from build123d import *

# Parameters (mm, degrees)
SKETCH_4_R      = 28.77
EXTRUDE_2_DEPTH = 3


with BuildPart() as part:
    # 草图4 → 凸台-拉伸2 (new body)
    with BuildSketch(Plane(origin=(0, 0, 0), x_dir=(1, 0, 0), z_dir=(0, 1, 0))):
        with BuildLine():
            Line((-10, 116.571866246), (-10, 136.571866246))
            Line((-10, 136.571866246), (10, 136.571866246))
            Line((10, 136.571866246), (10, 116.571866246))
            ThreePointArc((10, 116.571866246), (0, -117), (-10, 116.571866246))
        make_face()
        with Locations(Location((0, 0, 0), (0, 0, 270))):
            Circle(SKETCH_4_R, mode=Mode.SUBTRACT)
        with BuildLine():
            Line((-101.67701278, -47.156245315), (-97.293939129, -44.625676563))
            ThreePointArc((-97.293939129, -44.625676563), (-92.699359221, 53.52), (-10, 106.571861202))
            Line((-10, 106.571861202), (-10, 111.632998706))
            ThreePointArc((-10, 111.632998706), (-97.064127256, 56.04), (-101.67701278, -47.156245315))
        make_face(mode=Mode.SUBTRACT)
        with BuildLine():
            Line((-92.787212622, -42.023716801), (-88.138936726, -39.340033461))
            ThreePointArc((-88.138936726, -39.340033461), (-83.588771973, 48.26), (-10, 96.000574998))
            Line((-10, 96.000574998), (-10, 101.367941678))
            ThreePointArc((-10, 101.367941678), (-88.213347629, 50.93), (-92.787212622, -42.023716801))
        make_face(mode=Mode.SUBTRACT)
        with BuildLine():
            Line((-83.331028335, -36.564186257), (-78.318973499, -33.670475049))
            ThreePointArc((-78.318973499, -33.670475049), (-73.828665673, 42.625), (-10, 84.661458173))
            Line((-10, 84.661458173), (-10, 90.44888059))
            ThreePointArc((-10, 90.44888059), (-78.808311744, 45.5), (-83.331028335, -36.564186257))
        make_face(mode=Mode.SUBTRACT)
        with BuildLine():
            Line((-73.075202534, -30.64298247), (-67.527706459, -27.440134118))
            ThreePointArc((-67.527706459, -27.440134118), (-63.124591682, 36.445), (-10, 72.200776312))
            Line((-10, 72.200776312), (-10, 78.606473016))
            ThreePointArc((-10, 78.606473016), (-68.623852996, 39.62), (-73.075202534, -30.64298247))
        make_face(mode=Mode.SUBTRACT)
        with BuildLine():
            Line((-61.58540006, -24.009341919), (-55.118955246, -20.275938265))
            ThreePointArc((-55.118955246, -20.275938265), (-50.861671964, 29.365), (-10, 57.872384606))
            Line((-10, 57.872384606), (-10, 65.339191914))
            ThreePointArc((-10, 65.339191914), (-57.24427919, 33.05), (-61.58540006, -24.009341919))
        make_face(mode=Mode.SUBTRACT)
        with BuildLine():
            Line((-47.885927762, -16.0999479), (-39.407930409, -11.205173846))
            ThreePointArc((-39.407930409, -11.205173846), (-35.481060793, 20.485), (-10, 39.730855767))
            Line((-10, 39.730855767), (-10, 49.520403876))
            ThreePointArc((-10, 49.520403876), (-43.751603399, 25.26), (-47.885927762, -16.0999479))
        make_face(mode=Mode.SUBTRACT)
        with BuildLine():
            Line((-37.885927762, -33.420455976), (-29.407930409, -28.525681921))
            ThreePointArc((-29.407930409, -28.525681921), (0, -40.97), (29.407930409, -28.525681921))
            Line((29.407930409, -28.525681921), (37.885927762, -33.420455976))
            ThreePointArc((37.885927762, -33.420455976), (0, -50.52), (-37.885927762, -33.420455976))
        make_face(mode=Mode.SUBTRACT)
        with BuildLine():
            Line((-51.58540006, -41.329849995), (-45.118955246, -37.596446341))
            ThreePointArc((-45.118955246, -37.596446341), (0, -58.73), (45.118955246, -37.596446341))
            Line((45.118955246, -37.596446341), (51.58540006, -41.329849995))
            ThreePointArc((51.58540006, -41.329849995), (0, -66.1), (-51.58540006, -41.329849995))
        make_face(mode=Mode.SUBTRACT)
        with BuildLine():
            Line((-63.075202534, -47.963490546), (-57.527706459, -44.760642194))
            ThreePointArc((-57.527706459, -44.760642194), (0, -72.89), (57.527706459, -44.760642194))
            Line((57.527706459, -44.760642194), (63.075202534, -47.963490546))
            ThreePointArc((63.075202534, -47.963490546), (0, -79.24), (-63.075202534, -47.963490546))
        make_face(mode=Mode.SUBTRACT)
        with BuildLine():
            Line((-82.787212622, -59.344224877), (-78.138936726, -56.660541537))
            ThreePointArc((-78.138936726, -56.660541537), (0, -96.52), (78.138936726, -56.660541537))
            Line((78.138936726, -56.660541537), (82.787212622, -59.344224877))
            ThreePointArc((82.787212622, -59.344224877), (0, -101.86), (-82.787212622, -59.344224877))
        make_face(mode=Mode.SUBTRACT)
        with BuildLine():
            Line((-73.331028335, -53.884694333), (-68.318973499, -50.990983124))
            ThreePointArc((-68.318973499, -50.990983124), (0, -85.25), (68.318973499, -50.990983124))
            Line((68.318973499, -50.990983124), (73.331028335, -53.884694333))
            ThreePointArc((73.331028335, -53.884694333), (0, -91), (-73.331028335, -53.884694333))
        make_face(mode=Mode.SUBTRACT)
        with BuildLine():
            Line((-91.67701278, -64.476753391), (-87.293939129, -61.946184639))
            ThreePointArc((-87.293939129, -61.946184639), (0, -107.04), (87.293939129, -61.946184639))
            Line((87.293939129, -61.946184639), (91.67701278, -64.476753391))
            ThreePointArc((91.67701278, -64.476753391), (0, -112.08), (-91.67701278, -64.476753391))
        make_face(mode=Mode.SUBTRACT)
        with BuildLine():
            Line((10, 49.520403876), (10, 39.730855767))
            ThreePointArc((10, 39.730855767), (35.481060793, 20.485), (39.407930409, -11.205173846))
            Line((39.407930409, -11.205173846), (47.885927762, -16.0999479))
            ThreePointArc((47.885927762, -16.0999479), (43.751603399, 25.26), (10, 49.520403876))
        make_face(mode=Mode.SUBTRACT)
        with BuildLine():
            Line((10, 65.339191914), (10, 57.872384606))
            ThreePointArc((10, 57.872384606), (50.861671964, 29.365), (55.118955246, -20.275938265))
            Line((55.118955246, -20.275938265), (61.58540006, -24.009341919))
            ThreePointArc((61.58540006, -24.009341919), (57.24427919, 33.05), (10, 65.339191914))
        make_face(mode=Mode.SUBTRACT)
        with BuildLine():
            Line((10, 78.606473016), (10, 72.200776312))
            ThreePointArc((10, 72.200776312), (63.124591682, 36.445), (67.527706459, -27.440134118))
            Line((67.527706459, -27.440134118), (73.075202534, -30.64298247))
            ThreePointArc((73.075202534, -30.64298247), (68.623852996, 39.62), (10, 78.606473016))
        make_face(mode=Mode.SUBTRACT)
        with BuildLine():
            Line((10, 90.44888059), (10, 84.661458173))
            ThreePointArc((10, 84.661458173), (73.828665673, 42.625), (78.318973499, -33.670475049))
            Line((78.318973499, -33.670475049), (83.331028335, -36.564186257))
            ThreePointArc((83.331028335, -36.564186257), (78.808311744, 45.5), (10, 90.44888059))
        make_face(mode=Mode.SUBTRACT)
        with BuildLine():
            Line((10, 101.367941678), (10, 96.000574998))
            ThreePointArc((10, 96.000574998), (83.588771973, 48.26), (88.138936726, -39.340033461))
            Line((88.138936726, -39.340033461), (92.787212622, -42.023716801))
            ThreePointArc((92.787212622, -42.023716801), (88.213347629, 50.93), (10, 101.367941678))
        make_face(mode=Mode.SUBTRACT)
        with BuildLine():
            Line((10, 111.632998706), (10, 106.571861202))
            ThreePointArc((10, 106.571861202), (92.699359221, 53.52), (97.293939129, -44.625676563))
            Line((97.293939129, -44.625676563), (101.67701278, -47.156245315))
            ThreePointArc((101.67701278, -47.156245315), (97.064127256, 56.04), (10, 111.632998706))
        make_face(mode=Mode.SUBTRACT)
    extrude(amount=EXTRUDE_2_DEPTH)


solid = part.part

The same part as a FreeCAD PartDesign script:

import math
import FreeCAD as App
import Part
import Sketcher

V = App.Vector
Q = App.Units.Quantity

doc = App.newDocument("Part")
body = doc.addObject("PartDesign::Body", "Body")

# Sketch on XZ plane
sketch1 = body.newObject("Sketcher::SketchObject", "Sketch")
sketch1.AttachmentSupport = (doc.getObject("XZ_Plane"), [""])
sketch1.MapMode = "FlatFace"
sketch1.addGeometry([
    Part.LineSegment(V(-10, -136.571866, 0), V(-10, -116.571866, 0)),  # 0
    Part.ArcOfCircle(Part.Circle(V(0, 0, 0), V(0, 0, 1), 117), math.radians(-85.096943), math.radians(265.096943)),  # 1
    Part.LineSegment(V(10, -116.571866, 0), V(10, -136.571866, 0)),  # 2
    Part.LineSegment(V(10, -136.571866, 0), V(-10, -136.571866, 0)),  # 3
    Part.LineSegment(V(-91.677013, 64.476753, 0), V(-87.293939, 61.946185, 0)),  # 4
    Part.ArcOfCircle(Part.Circle(V(0, 0, 0), V(0, 0, 1), 107.04), math.radians(35.360562), math.radians(144.639438)),  # 5
    Part.LineSegment(V(87.293939, 61.946185, 0), V(91.677013, 64.476753, 0)),  # 6
    Part.ArcOfCircle(Part.Circle(V(0, 0, 0), V(0, 0, 1), 112.08), math.radians(35.11885), math.radians(144.88115)),  # 7
    Part.LineSegment(V(-82.787213, 59.344225, 0), V(-78.138937, 56.660542, 0)),  # 8
    Part.ArcOfCircle(Part.Circle(V(0, 0, 0), V(0, 0, 1), 96.52), math.radians(35.946828), math.radians(144.053172)),  # 9
    Part.LineSegment(V(78.138937, 56.660542, 0), V(82.787213, 59.344225, 0)),  # 10
    Part.ArcOfCircle(Part.Circle(V(0, 0, 0), V(0, 0, 1), 101.86), math.radians(35.634029), math.radians(144.365971)),  # 11
    Part.LineSegment(V(-73.331028, 53.884694, 0), V(-68.318973, 50.990983, 0)),  # 12
    Part.ArcOfCircle(Part.Circle(V(0, 0, 0), V(0, 0, 1), 85.25), math.radians(36.736422), math.radians(143.263578)),  # 13
    Part.LineSegment(V(68.318973, 50.990983, 0), V(73.331028, 53.884694, 0)),  # 14
    Part.ArcOfCircle(Part.Circle(V(0, 0, 0), V(0, 0, 1), 91), math.radians(36.308981), math.radians(143.691019)),  # 15
    Part.LineSegment(V(-63.075203, 47.963491, 0), V(-57.527706, 44.760642, 0)),  # 16
    Part.ArcOfCircle(Part.Circle(V(0, 0, 0), V(0, 0, 1), 72.89), math.radians(37.885451), math.radians(142.114549)),  # 17
    Part.LineSegment(V(57.527706, 44.760642, 0), V(63.075203, 47.963491, 0)),  # 18
    Part.ArcOfCircle(Part.Circle(V(0, 0, 0), V(0, 0, 1), 79.24), math.radians(37.249995), math.radians(142.750005)),  # 19
    Part.LineSegment(V(-51.5854, 41.32985, 0), V(-45.118955, 37.596446, 0)),  # 20
    Part.ArcOfCircle(Part.Circle(V(0, 0, 0), V(0, 0, 1), 58.73), math.radians(39.80356), math.radians(140.19644)),  # 21
    Part.LineSegment(V(45.118955, 37.596446, 0), V(51.5854, 41.32985, 0)),  # 22
    Part.ArcOfCircle(Part.Circle(V(0, 0, 0), V(0, 0, 1), 66.1), math.radians(38.701455), math.radians(141.298545)),  # 23
    Part.LineSegment(V(-37.885928, 33.420456, 0), V(-29.40793, 28.525682, 0)),  # 24
    Part.ArcOfCircle(Part.Circle(V(0, 0, 0), V(0, 0, 1), 40.97), math.radians(44.127532), math.radians(135.872468)),  # 25
    Part.LineSegment(V(29.40793, 28.525682, 0), V(37.885928, 33.420456, 0)),  # 26
    Part.ArcOfCircle(Part.Circle(V(0, 0, 0), V(0, 0, 1), 50.52), math.radians(41.416604), math.radians(138.583396)),  # 27
    Part.ArcOfCircle(Part.Circle(V(0, 0, 0), V(0, 0, 1), 112.08), math.radians(-84.88115), math.radians(24.88115)),  # 28
    Part.LineSegment(V(101.677013, 47.156245, 0), V(97.293939, 44.625677, 0)),  # 29
    Part.ArcOfCircle(Part.Circle(V(0, 0, 0), V(0, 0, 1), 107.04), math.radians(-84.639438), math.radians(24.639438)),  # 30
    Part.LineSegment(V(10, -106.571861, 0), V(10, -111.632999, 0)),  # 31
    Part.ArcOfCircle(Part.Circle(V(0, 0, 0), V(0, 0, 1), 91), math.radians(-83.691019), math.radians(23.691019)),  # 32
    Part.LineSegment(V(83.331028, 36.564186, 0), V(78.318973, 33.670475, 0)),  # 33
    Part.ArcOfCircle(Part.Circle(V(0, 0, 0), V(0, 0, 1), 85.25), math.radians(-83.263578), math.radians(23.263578)),  # 34
    Part.LineSegment(V(10, -84.661458, 0), V(10, -90.448881, 0)),  # 35
    Part.ArcOfCircle(Part.Circle(V(0, 0, 0), V(0, 0, 1), 79.24), math.radians(-82.750005), math.radians(22.750005)),  # 36
    Part.LineSegment(V(73.075203, 30.642982, 0), V(67.527706, 27.440134, 0)),  # 37
    Part.ArcOfCircle(Part.Circle(V(0, 0, 0), V(0, 0, 1), 72.89), math.radians(-82.114549), math.radians(22.114549)),  # 38
    Part.LineSegment(V(10, -72.200776, 0), V(10, -78.606473, 0)),  # 39
    Part.ArcOfCircle(Part.Circle(V(0, 0, 0), V(0, 0, 1), 66.1), math.radians(-81.298545), math.radians(21.298545)),  # 40
    Part.LineSegment(V(61.5854, 24.009342, 0), V(55.118955, 20.275938, 0)),  # 41
    Part.ArcOfCircle(Part.Circle(V(0, 0, 0), V(0, 0, 1), 58.73), math.radians(-80.19644), math.radians(20.19644)),  # 42
    Part.LineSegment(V(10, -57.872385, 0), V(10, -65.339192, 0)),  # 43
    Part.ArcOfCircle(Part.Circle(V(0, 0, 0), V(0, 0, 1), 50.52), math.radians(-78.583396), math.radians(18.583396)),  # 44
    Part.LineSegment(V(47.885928, 16.099948, 0), V(39.40793, 11.205174, 0)),  # 45
    Part.ArcOfCircle(Part.Circle(V(0, 0, 0), V(0, 0, 1), 40.97), math.radians(-75.872468), math.radians(15.872468)),  # 46
    Part.LineSegment(V(10, -39.730856, 0), V(10, -49.520404, 0)),  # 47
    Part.ArcOfCircle(Part.Circle(V(0, 0, 0), V(0, 0, 1), 101.86), math.radians(-84.365971), math.radians(24.365971)),  # 48
    Part.LineSegment(V(92.787213, 42.023717, 0), V(88.138937, 39.340033, 0)),  # 49
    Part.ArcOfCircle(Part.Circle(V(0, 0, 0), V(0, 0, 1), 96.52), math.radians(-84.053172), math.radians(24.053172)),  # 50
    Part.LineSegment(V(10, -96.000575, 0), V(10, -101.367942, 0)),  # 51
    Part.Circle(V(0, 0, 0), V(0, 0, 1), 28.77),  # 52
    Part.ArcOfCircle(Part.Circle(V(0, 0, 0), V(0, 0, 1), 50.52), math.radians(161.416604), math.radians(258.583396)),  # 53
    Part.LineSegment(V(-10, -49.520404, 0), V(-10, -39.730856, 0)),  # 54
    Part.ArcOfCircle(Part.Circle(V(0, 0, 0), V(0, 0, 1), 40.97), math.radians(164.127532), math.radians(255.872468)),  # 55
    Part.LineSegment(V(-39.40793, 11.205174, 0), V(-47.885928, 16.099948, 0)),  # 56
    Part.ArcOfCircle(Part.Circle(V(0, 0, 0), V(0, 0, 1), 66.1), math.radians(158.701455), math.radians(261.298545)),  # 57
    Part.LineSegment(V(-10, -65.339192, 0), V(-10, -57.872385, 0)),  # 58
    Part.ArcOfCircle(Part.Circle(V(0, 0, 0), V(0, 0, 1), 58.73), math.radians(159.80356), math.radians(260.19644)),  # 59
    Part.LineSegment(V(-55.118955, 20.275938, 0), V(-61.5854, 24.009342, 0)),  # 60
    Part.ArcOfCircle(Part.Circle(V(0, 0, 0), V(0, 0, 1), 79.24), math.radians(157.249995), math.radians(262.750005)),  # 61
    Part.LineSegment(V(-10, -78.606473, 0), V(-10, -72.200776, 0)),  # 62
    Part.ArcOfCircle(Part.Circle(V(0, 0, 0), V(0, 0, 1), 72.89), math.radians(157.885451), math.radians(262.114549)),  # 63
    Part.LineSegment(V(-67.527706, 27.440134, 0), V(-73.075203, 30.642982, 0)),  # 64
    Part.ArcOfCircle(Part.Circle(V(0, 0, 0), V(0, 0, 1), 91), math.radians(156.308981), math.radians(263.691019)),  # 65
    Part.LineSegment(V(-10, -90.448881, 0), V(-10, -84.661458, 0)),  # 66
    Part.ArcOfCircle(Part.Circle(V(0, 0, 0), V(0, 0, 1), 85.25), math.radians(156.736422), math.radians(263.263578)),  # 67
    Part.LineSegment(V(-78.318973, 33.670475, 0), V(-83.331028, 36.564186, 0)),  # 68
    Part.ArcOfCircle(Part.Circle(V(0, 0, 0), V(0, 0, 1), 101.86), math.radians(155.634029), math.radians(264.365971)),  # 69
    Part.LineSegment(V(-10, -101.367942, 0), V(-10, -96.000575, 0)),  # 70
    Part.ArcOfCircle(Part.Circle(V(0, 0, 0), V(0, 0, 1), 96.52), math.radians(155.946828), math.radians(264.053172)),  # 71
    Part.LineSegment(V(-88.138937, 39.340033, 0), V(-92.787213, 42.023717, 0)),  # 72
    Part.ArcOfCircle(Part.Circle(V(0, 0, 0), V(0, 0, 1), 112.08), math.radians(155.11885), math.radians(264.88115)),  # 73
    Part.LineSegment(V(-10, -111.632999, 0), V(-10, -106.571861, 0)),  # 74
    Part.ArcOfCircle(Part.Circle(V(0, 0, 0), V(0, 0, 1), 107.04), math.radians(155.360562), math.radians(264.639438)),  # 75
    Part.LineSegment(V(-97.293939, 44.625677, 0), V(-101.677013, 47.156245, 0)),  # 76
], False)
sketch1.addConstraint([
    Sketcher.Constraint("Coincident", 0, 2, 1, 2),
    Sketcher.Constraint("Coincident", 1, 1, 2, 1),
    Sketcher.Constraint("Coincident", 2, 2, 3, 1),
    Sketcher.Constraint("Coincident", 3, 2, 0, 1),
    Sketcher.Constraint("Coincident", 4, 2, 5, 2),
    Sketcher.Constraint("Coincident", 5, 1, 6, 1),
    Sketcher.Constraint("Coincident", 6, 2, 7, 1),
    Sketcher.Constraint("Coincident", 7, 2, 4, 1),
    Sketcher.Constraint("Coincident", 8, 2, 9, 2),
    Sketcher.Constraint("Coincident", 9, 1, 10, 1),
    Sketcher.Constraint("Coincident", 10, 2, 11, 1),
    Sketcher.Constraint("Coincident", 11, 2, 8, 1),
    Sketcher.Constraint("Coincident", 12, 2, 13, 2),
    Sketcher.Constraint("Coincident", 13, 1, 14, 1),
    Sketcher.Constraint("Coincident", 14, 2, 15, 1),
    Sketcher.Constraint("Coincident", 15, 2, 12, 1),
    Sketcher.Constraint("Coincident", 16, 2, 17, 2),
    Sketcher.Constraint("Coincident", 17, 1, 18, 1),
    Sketcher.Constraint("Coincident", 18, 2, 19, 1),
    Sketcher.Constraint("Coincident", 19, 2, 16, 1),
    Sketcher.Constraint("Coincident", 20, 2, 21, 2),
    Sketcher.Constraint("Coincident", 21, 1, 22, 1),
    Sketcher.Constraint("Coincident", 22, 2, 23, 1),
    Sketcher.Constraint("Coincident", 23, 2, 20, 1),
    Sketcher.Constraint("Coincident", 24, 2, 25, 2),
    Sketcher.Constraint("Coincident", 25, 1, 26, 1),
    Sketcher.Constraint("Coincident", 26, 2, 27, 1),
    Sketcher.Constraint("Coincident", 27, 2, 24, 1),
    Sketcher.Constraint("Coincident", 28, 2, 29, 1),
    Sketcher.Constraint("Coincident", 29, 2, 30, 2),
    Sketcher.Constraint("Coincident", 30, 1, 31, 1),
    Sketcher.Constraint("Coincident", 31, 2, 28, 1),
    Sketcher.Constraint("Coincident", 32, 2, 33, 1),
    Sketcher.Constraint("Coincident", 33, 2, 34, 2),
    Sketcher.Constraint("Coincident", 34, 1, 35, 1),
    Sketcher.Constraint("Coincident", 35, 2, 32, 1),
    Sketcher.Constraint("Coincident", 36, 2, 37, 1),
    Sketcher.Constraint("Coincident", 37, 2, 38, 2),
    Sketcher.Constraint("Coincident", 38, 1, 39, 1),
    Sketcher.Constraint("Coincident", 39, 2, 36, 1),
    Sketcher.Constraint("Coincident", 40, 2, 41, 1),
    Sketcher.Constraint("Coincident", 41, 2, 42, 2),
    Sketcher.Constraint("Coincident", 42, 1, 43, 1),
    Sketcher.Constraint("Coincident", 43, 2, 40, 1),
    Sketcher.Constraint("Coincident", 44, 2, 45, 1),
    Sketcher.Constraint("Coincident", 45, 2, 46, 2),
    Sketcher.Constraint("Coincident", 46, 1, 47, 1),
    Sketcher.Constraint("Coincident", 47, 2, 44, 1),
    Sketcher.Constraint("Coincident", 48, 2, 49, 1),
    Sketcher.Constraint("Coincident", 49, 2, 50, 2),
    Sketcher.Constraint("Coincident", 50, 1, 51, 1),
    Sketcher.Constraint("Coincident", 51, 2, 48, 1),
    Sketcher.Constraint("Coincident", 53, 2, 54, 1),
    Sketcher.Constraint("Coincident", 54, 2, 55, 2),
    Sketcher.Constraint("Coincident", 55, 1, 56, 1),
    Sketcher.Constraint("Coincident", 56, 2, 53, 1),
    Sketcher.Constraint("Coincident", 57, 2, 58, 1),
    Sketcher.Constraint("Coincident", 58, 2, 59, 2),
    Sketcher.Constraint("Coincident", 59, 1, 60, 1),
    Sketcher.Constraint("Coincident", 60, 2, 57, 1),
    Sketcher.Constraint("Coincident", 61, 2, 62, 1),
    Sketcher.Constraint("Coincident", 62, 2, 63, 2),
    Sketcher.Constraint("Coincident", 63, 1, 64, 1),
    Sketcher.Constraint("Coincident", 64, 2, 61, 1),
    Sketcher.Constraint("Coincident", 65, 2, 66, 1),
    Sketcher.Constraint("Coincident", 66, 2, 67, 2),
    Sketcher.Constraint("Coincident", 67, 1, 68, 1),
    Sketcher.Constraint("Coincident", 68, 2, 65, 1),
    Sketcher.Constraint("Coincident", 69, 2, 70, 1),
    Sketcher.Constraint("Coincident", 70, 2, 71, 2),
    Sketcher.Constraint("Coincident", 71, 1, 72, 1),
    Sketcher.Constraint("Coincident", 72, 2, 69, 1),
    Sketcher.Constraint("Coincident", 73, 2, 74, 1),
    Sketcher.Constraint("Coincident", 74, 2, 75, 2),
    Sketcher.Constraint("Coincident", 75, 1, 76, 1),
    Sketcher.Constraint("Coincident", 76, 2, 73, 1),
    Sketcher.Constraint("Vertical", 0),
    Sketcher.Constraint("Vertical", 2),
    Sketcher.Constraint("Horizontal", 3),
    Sketcher.Constraint("Vertical", 31),
    Sketcher.Constraint("Vertical", 35),
    Sketcher.Constraint("Vertical", 39),
    Sketcher.Constraint("Vertical", 43),
    Sketcher.Constraint("Vertical", 47),
    Sketcher.Constraint("Vertical", 51),
    Sketcher.Constraint("Vertical", 54),
    Sketcher.Constraint("Vertical", 58),
    Sketcher.Constraint("Vertical", 62),
    Sketcher.Constraint("Vertical", 66),
    Sketcher.Constraint("Vertical", 70),
    Sketcher.Constraint("Vertical", 74),
    Sketcher.Constraint("Coincident", 1, 3, -1, 1),
    Sketcher.Constraint("Coincident", 5, 3, -1, 1),
    Sketcher.Constraint("Coincident", 7, 3, -1, 1),
    Sketcher.Constraint("Coincident", 9, 3, -1, 1),
    Sketcher.Constraint("Coincident", 11, 3, -1, 1),
    Sketcher.Constraint("Coincident", 13, 3, -1, 1),
    Sketcher.Constraint("Coincident", 15, 3, -1, 1),
    Sketcher.Constraint("Coincident", 17, 3, -1, 1),
    Sketcher.Constraint("Coincident", 19, 3, -1, 1),
    Sketcher.Constraint("Coincident", 21, 3, -1, 1),
    Sketcher.Constraint("Coincident", 23, 3, -1, 1),
    Sketcher.Constraint("Coincident", 25, 3, -1, 1),
    Sketcher.Constraint("Coincident", 27, 3, -1, 1),
    Sketcher.Constraint("Coincident", 28, 3, -1, 1),
    Sketcher.Constraint("Coincident", 30, 3, -1, 1),
    Sketcher.Constraint("Coincident", 32, 3, -1, 1),
    Sketcher.Constraint("Coincident", 34, 3, -1, 1),
    Sketcher.Constraint("Coincident", 36, 3, -1, 1),
    Sketcher.Constraint("Coincident", 38, 3, -1, 1),
    Sketcher.Constraint("Coincident", 40, 3, -1, 1),
    Sketcher.Constraint("Coincident", 42, 3, -1, 1),
    Sketcher.Constraint("Coincident", 44, 3, -1, 1),
    Sketcher.Constraint("Coincident", 46, 3, -1, 1),
    Sketcher.Constraint("Coincident", 48, 3, -1, 1),
    Sketcher.Constraint("Coincident", 50, 3, -1, 1),
    Sketcher.Constraint("Coincident", 52, 3, -1, 1),
    Sketcher.Constraint("Coincident", 53, 3, -1, 1),
    Sketcher.Constraint("Coincident", 55, 3, -1, 1),
    Sketcher.Constraint("Coincident", 57, 3, -1, 1),
    Sketcher.Constraint("Coincident", 59, 3, -1, 1),
    Sketcher.Constraint("Coincident", 61, 3, -1, 1),
    Sketcher.Constraint("Coincident", 63, 3, -1, 1),
    Sketcher.Constraint("Coincident", 65, 3, -1, 1),
    Sketcher.Constraint("Coincident", 67, 3, -1, 1),
    Sketcher.Constraint("Coincident", 69, 3, -1, 1),
    Sketcher.Constraint("Coincident", 71, 3, -1, 1),
    Sketcher.Constraint("Coincident", 73, 3, -1, 1),
    Sketcher.Constraint("Coincident", 75, 3, -1, 1),
    Sketcher.Constraint("Equal", 7, 28),
    Sketcher.Constraint("Equal", 5, 30),
    Sketcher.Constraint("Equal", 15, 32),
    Sketcher.Constraint("Equal", 13, 34),
    Sketcher.Constraint("Equal", 19, 36),
    Sketcher.Constraint("Equal", 17, 38),
    Sketcher.Constraint("Equal", 23, 40),
    Sketcher.Constraint("Equal", 21, 42),
    Sketcher.Constraint("Equal", 27, 44),
    Sketcher.Constraint("Equal", 25, 46),
    Sketcher.Constraint("Equal", 11, 48),
    Sketcher.Constraint("Equal", 9, 50),
    Sketcher.Constraint("Equal", 44, 53),
    Sketcher.Constraint("Equal", 46, 55),
    Sketcher.Constraint("Equal", 40, 57),
    Sketcher.Constraint("Equal", 42, 59),
    Sketcher.Constraint("Equal", 36, 61),
    Sketcher.Constraint("Equal", 38, 63),
    Sketcher.Constraint("Equal", 32, 65),
    Sketcher.Constraint("Equal", 34, 67),
    Sketcher.Constraint("Equal", 48, 69),
    Sketcher.Constraint("Equal", 50, 71),
    Sketcher.Constraint("Equal", 28, 73),
    Sketcher.Constraint("Equal", 30, 75),
    Sketcher.Constraint("Parallel", 4, 8),
    Sketcher.Constraint("Parallel", 6, 10),
    Sketcher.Constraint("Parallel", 8, 12),
    Sketcher.Constraint("Parallel", 10, 14),
    Sketcher.Constraint("Parallel", 12, 16),
    Sketcher.Constraint("Parallel", 14, 18),
    Sketcher.Constraint("Parallel", 16, 20),
    Sketcher.Constraint("Parallel", 18, 22),
    Sketcher.Constraint("Parallel", 20, 24),
    Sketcher.Constraint("Parallel", 22, 26),
    Sketcher.Constraint("Parallel", 26, 29),
    Sketcher.Constraint("Parallel", 29, 33),
    Sketcher.Constraint("Parallel", 33, 37),
    Sketcher.Constraint("Parallel", 37, 41),
    Sketcher.Constraint("Parallel", 41, 45),
    Sketcher.Constraint("Parallel", 45, 49),
    Sketcher.Constraint("Parallel", 24, 56),
    Sketcher.Constraint("Parallel", 56, 60),
    Sketcher.Constraint("Parallel", 60, 64),
    Sketcher.Constraint("Parallel", 64, 68),
    Sketcher.Constraint("Parallel", 68, 72),
    Sketcher.Constraint("Parallel", 72, 76),
    Sketcher.Constraint("Horizontal", 0, 2, 1, 1),
    Sketcher.Constraint("Horizontal", 4, 2, 5, 1),
    Sketcher.Constraint("Horizontal", 6, 2, 7, 2),
    Sketcher.Constraint("Horizontal", 8, 2, 9, 1),
    Sketcher.Constraint("Horizontal", 12, 2, 13, 1),
    Sketcher.Constraint("Horizontal", 16, 2, 17, 1),
    Sketcher.Constraint("Horizontal", 20, 2, 21, 1),
    Sketcher.Constraint("Horizontal", 24, 2, 25, 1),
    Sketcher.Constraint("Horizontal", 47, 2, 53, 2),
    Sketcher.Constraint("Horizontal", 45, 2, 55, 1),
    Sketcher.Constraint("Horizontal", 43, 2, 57, 2),
    Sketcher.Constraint("Horizontal", 41, 2, 59, 1),
    Sketcher.Constraint("Horizontal", 39, 2, 61, 2),
    Sketcher.Constraint("Horizontal", 37, 2, 63, 1),
    Sketcher.Constraint("Horizontal", 35, 2, 65, 2),
    Sketcher.Constraint("Horizontal", 33, 2, 67, 1),
    Sketcher.Constraint("Horizontal", 51, 2, 69, 2),
    Sketcher.Constraint("Horizontal", 49, 2, 71, 1),
    Sketcher.Constraint("Horizontal", 31, 2, 73, 2),
    Sketcher.Constraint("Horizontal", 29, 2, 75, 1),
    Sketcher.Constraint("Vertical", 2, 2, 30, 1),
    Sketcher.Constraint("Vertical", 31, 2, 34, 1),
    Sketcher.Constraint("Vertical", 35, 2, 38, 1),
    Sketcher.Constraint("Vertical", 39, 2, 42, 1),
    Sketcher.Constraint("Vertical", 43, 2, 46, 1),
    Sketcher.Constraint("Vertical", 47, 2, 50, 1),
    Sketcher.Constraint("Equal", 3, 0),
    Sketcher.Constraint("Equal", 6, 29),
    Sketcher.Constraint("Equal", 14, 33),
    Sketcher.Constraint("Equal", 18, 37),
    Sketcher.Constraint("Equal", 22, 41),
    Sketcher.Constraint("Equal", 26, 45),
    Sketcher.Constraint("Equal", 10, 49),
    Sketcher.Constraint("Radius", 1, 117.0),
    Sketcher.Constraint("Radius", 15, 91.0),
    Sketcher.Constraint("Radius", 23, 66.1),
    Sketcher.Constraint("Diameter", 52, 57.54),
    Sketcher.Constraint("DistanceX", 3, 2, 3, 1, 20.0),
    Sketcher.Constraint("Angle", 4, Q("-30 deg")),
    Sketcher.Constraint("Radius", 5, 107.04),
    Sketcher.Constraint("Radius", 7, 112.08),
    Sketcher.Constraint("Radius", 9, 96.52),
    Sketcher.Constraint("Radius", 11, 101.86),
    Sketcher.Constraint("Radius", 13, 85.25),
    Sketcher.Constraint("Radius", 17, 72.89),
    Sketcher.Constraint("Radius", 19, 79.24),
    Sketcher.Constraint("Radius", 21, 58.73),
    Sketcher.Constraint("Radius", 25, 40.97),
    Sketcher.Constraint("Radius", 27, 50.52),
    Sketcher.Constraint("DistanceX", -1, 1, 22, 2, 51.5854),
    Sketcher.Constraint("Distance", 24, 9.789548),
    Sketcher.Constraint("DistanceX", 4, 2, -1, 1, 87.293939),
    Sketcher.Constraint("DistanceY", -1, 1, 8, 2, 56.660542),
    Sketcher.Constraint("DistanceX", -1, 1, 14, 2, 73.331028),
    Sketcher.Constraint("DistanceY", -1, 1, 18, 2, 47.963491),
])
pad1 = body.newObject("PartDesign::Pad", "Pad")
pad1.Profile = sketch1
pad1.Length = 3
pad1.Reversed = True

doc.recompute()
